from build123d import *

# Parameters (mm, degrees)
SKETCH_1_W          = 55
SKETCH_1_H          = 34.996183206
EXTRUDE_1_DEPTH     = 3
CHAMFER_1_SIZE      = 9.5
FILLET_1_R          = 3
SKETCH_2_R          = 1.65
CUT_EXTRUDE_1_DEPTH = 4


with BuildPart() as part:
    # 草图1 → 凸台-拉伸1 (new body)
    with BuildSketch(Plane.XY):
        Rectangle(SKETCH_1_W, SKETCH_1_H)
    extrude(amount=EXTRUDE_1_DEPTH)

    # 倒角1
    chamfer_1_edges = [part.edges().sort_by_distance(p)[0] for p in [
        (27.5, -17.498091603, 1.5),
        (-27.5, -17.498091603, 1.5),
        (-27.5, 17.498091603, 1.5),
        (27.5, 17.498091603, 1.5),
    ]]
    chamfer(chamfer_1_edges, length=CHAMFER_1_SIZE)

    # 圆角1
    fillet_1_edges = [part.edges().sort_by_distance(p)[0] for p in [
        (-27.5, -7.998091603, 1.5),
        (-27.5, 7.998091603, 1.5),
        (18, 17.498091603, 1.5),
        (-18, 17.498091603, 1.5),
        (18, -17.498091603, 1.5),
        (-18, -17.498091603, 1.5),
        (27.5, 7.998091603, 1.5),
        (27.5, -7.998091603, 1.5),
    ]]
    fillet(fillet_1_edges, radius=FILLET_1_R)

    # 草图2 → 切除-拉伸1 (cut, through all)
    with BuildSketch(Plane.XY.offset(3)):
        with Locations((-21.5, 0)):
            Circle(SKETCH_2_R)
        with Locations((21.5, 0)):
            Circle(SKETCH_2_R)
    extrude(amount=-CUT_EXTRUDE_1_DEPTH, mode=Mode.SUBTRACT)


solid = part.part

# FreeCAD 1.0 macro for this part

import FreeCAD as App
import Part
import Sketcher

V = App.Vector


def edges_at(feature, points):
    """Names of the edges that pass closest to the given points."""
    edges = feature.Shape.Edges
    near = lambda p: min(range(len(edges)), key=lambda i: edges[i].distToShape(Part.Vertex(*p))[0])
    return sorted({f"Edge{near(p) + 1}" for p in points})

doc = App.newDocument("Part")
body = doc.addObject("PartDesign::Body", "Body")

sketch1 = doc.addObject("Sketcher::SketchObject", "Sketch")
body.addObject(sketch1)
sketch1.AttachmentSupport = (doc.XY_Plane, [""])
sketch1.MapMode = "FlatFace"
sketch1.addGeometry([
    Part.LineSegment(V(-28, 17, 0), V(-28, -17, 0)),
    Part.LineSegment(V(-28, -17, 0), V(28, -17, 0)),
    Part.LineSegment(V(28, -17, 0), V(28, 17, 0)),
    Part.LineSegment(V(28, 17, 0), V(-28, 17, 0)),
], False)
sketch1.addConstraint([
    Sketcher.Constraint("Coincident", 0, 2, 1, 1),
    Sketcher.Constraint("Coincident", 1, 2, 2, 1),
    Sketcher.Constraint("Coincident", 2, 2, 3, 1),
    Sketcher.Constraint("Coincident", 3, 2, 0, 1),
    Sketcher.Constraint("Vertical", 0),
    Sketcher.Constraint("Horizontal", 1),
    Sketcher.Constraint("Vertical", 2),
    Sketcher.Constraint("Horizontal", 3),
    Sketcher.Constraint("Symmetric", 0, 2, 2, 2, -1, 1),
    Sketcher.Constraint("DistanceX", 1, 1, 1, 2, 55.0),
    Sketcher.Constraint("DistanceY", 0, 2, 0, 1, 34.996183),
])
pad1 = doc.addObject("PartDesign::Pad", "Pad")
body.addObject(pad1)
pad1.Profile = sketch1
pad1.Length = 3
doc.recompute()

chamfer = doc.addObject("PartDesign::Chamfer", "Chamfer")
body.addObject(chamfer)
chamfer.Base = (pad1, edges_at(pad1, [
    (27.5, -17.498, 1.5),
    (-27.5, -17.498, 1.5),
    (-27.5, 17.498, 1.5),
    (27.5, 17.498, 1.5),
]))
chamfer.Size = 9.5
doc.recompute()

fillet = doc.addObject("PartDesign::Fillet", "Fillet")
body.addObject(fillet)
fillet.Base = (chamfer, edges_at(chamfer, [
    (-27.5, -7.998, 1.5),
    (-27.5, 7.998, 1.5),
    (18, 17.498, 1.5),
    (-18, 17.498, 1.5),
    (18, -17.498, 1.5),
    (-18, -17.498, 1.5),
    (27.5, 7.998, 1.5),
    (27.5, -7.998, 1.5),
]))
fillet.Radius = 3

sketch2 = doc.addObject("Sketcher::SketchObject", "Sketch001")
body.addObject(sketch2)
sketch2.AttachmentSupport = (doc.XY_Plane, [""])
sketch2.MapMode = "FlatFace"
sketch2.AttachmentOffset = App.Placement(V(0, 0, 3), App.Rotation())
sketch2.addGeometry([
    Part.Circle(V(-21.5, 0, 0), V(0, 0, 1), 1.6),
    Part.Circle(V(21.5, 0, 0), V(0, 0, 1), 1.6),
], False)
sketch2.addConstraint([
    Sketcher.Constraint("Equal", 0, 1),
    Sketcher.Constraint("Symmetric", 0, 3, 1, 3, -1, 1),
    Sketcher.Constraint("PointOnObject", 0, 3, -1),
    Sketcher.Constraint("Diameter", 0, 3.3),
    Sketcher.Constraint("DistanceX", 0, 3, 1, 3, 43.0),
])
pocket1 = doc.addObject("PartDesign::Pocket", "Pocket")
body.addObject(pocket1)
pocket1.Profile = sketch2
pocket1.Type = "ThroughAll"

doc.recompute()
